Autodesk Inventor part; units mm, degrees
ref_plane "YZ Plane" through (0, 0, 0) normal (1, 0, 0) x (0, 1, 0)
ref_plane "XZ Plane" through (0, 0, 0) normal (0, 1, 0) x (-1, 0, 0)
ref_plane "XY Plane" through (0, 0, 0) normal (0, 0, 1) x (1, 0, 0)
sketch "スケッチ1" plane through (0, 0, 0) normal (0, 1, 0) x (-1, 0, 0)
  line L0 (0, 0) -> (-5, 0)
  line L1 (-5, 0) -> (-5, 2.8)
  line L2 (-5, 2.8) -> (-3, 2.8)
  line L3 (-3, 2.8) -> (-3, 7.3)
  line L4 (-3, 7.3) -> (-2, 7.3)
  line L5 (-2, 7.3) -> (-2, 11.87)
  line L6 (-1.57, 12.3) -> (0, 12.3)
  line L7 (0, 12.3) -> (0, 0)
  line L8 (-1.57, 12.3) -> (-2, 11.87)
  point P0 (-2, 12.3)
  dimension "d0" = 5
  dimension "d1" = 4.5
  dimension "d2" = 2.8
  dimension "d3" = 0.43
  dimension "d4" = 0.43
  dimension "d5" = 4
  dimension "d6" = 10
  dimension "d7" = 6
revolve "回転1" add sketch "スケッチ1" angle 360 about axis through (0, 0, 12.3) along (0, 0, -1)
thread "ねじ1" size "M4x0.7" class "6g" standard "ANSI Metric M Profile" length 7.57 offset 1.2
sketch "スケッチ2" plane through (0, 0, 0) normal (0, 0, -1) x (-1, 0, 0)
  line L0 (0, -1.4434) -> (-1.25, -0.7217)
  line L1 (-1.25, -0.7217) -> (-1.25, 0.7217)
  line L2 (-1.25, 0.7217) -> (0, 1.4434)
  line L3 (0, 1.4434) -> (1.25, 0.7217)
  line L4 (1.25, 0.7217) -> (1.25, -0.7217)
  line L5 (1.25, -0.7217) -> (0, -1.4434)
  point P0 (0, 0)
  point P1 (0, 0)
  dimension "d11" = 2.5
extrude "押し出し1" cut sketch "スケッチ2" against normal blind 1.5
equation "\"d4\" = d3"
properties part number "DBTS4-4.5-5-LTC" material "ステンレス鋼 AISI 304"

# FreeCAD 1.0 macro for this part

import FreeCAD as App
import Part
import Sketcher

V = App.Vector
Q = App.Units.Quantity


def add_polygon(sketch, points):
    """Adds a closed chain of lines whose ends are joined by coincident constraints."""
    first, n = sketch.GeometryCount, len(points)
    for a, b in zip(points, points[1:] + points[:1]):
        sketch.addGeometry(Part.LineSegment(App.Vector(*a, 0), App.Vector(*b, 0)), False)
    for i in range(n):
        sketch.addConstraint(Sketcher.Constraint("Coincident", first + i, 2, first + (i + 1) % n, 1))

doc = App.newDocument("Part")
body = doc.addObject("PartDesign::Body", "Body")

sketch1 = doc.addObject("Sketcher::SketchObject", "Sketch")
body.addObject(sketch1)
sketch1.AttachmentSupport = (doc.XZ_Plane, [""])
sketch1.MapMode = "FlatFace"
add_polygon(sketch1, [(5, 0), (0, 0), (0, 12.3), (1.6, 12.3), (2, 11.9), (2, 7.3), (3, 7.3), (3, 2.8), (5, 2.8)])
sketch1.addConstraint([
    Sketcher.Constraint("Horizontal", 0),
    Sketcher.Constraint("Vertical", 1),
    Sketcher.Constraint("Horizontal", 2),
    Sketcher.Constraint("Vertical", 4),
    Sketcher.Constraint("Horizontal", 5),
    Sketcher.Constraint("Vertical", 6),
    Sketcher.Constraint("Horizontal", 7),
    Sketcher.Constraint("Vertical", 8),
    Sketcher.Constraint("Coincident", 0, 2, -1, 1),
    Sketcher.Constraint("DistanceX", 0, 2, 0, 1, 5.0),
    Sketcher.Constraint("DistanceY", 6, 2, 6, 1, 4.5),
    Sketcher.Constraint("DistanceY", 8, 2, 8, 1, 2.8),
    Sketcher.Constraint("DistanceY", 4, 2, 2, 2, 5.0),
    Sketcher.Constraint("DistanceX", 5, 1, 5, 2, 1.0),
    Sketcher.Constraint("DistanceX", 7, 1, 7, 2, 2.0),
    Sketcher.Constraint("Angle", 3, Q("-45 deg")),
    Sketcher.Constraint("DistanceX", 2, 2, 3, 2, 0.43),
])
revolution = doc.addObject("PartDesign::Revolution", "Revolution")
body.addObject(revolution)
revolution.Profile = sketch1
revolution.ReferenceAxis = (sketch1, ["V_Axis"])
revolution.Angle = 360

sketch2 = doc.addObject("Sketcher::SketchObject", "Sketch001")
body.addObject(sketch2)
sketch2.AttachmentSupport = (doc.XY_Plane, [""])
sketch2.MapMode = "FlatFace"
add_polygon(sketch2, [(1.2, -0.7), (0, -1.4), (-1.2, -0.7), (-1.2, 0.7), (0, 1.4), (1.2, 0.7)])
sketch2.addConstraint([
    Sketcher.Constraint("Vertical", 2),
    Sketcher.Constraint("Vertical", 5),
    Sketcher.Constraint("Symmetric", 0, 2, 3, 2, -1, 1),
    Sketcher.Constraint("Symmetric", 1, 2, 4, 2, -1, 1),
    Sketcher.Constraint("PointOnObject", 0, 2, -2),
    Sketcher.Constraint("Parallel", 0, 3),
    Sketcher.Constraint("Horizontal", 2, 2, 4, 2),
    Sketcher.Constraint("DistanceX", 2, 2, 4, 2, 2.5),
    Sketcher.Constraint("Angle", 0, Q("-149.9996 deg")),
    Sketcher.Constraint("DistanceY", 2, 1, 2, 2, 1.4434),
])
pocket1 = doc.addObject("PartDesign::Pocket", "Pocket")
body.addObject(pocket1)
pocket1.Profile = sketch2
pocket1.Length = 1.5
pocket1.Reversed = True

doc.recompute()
